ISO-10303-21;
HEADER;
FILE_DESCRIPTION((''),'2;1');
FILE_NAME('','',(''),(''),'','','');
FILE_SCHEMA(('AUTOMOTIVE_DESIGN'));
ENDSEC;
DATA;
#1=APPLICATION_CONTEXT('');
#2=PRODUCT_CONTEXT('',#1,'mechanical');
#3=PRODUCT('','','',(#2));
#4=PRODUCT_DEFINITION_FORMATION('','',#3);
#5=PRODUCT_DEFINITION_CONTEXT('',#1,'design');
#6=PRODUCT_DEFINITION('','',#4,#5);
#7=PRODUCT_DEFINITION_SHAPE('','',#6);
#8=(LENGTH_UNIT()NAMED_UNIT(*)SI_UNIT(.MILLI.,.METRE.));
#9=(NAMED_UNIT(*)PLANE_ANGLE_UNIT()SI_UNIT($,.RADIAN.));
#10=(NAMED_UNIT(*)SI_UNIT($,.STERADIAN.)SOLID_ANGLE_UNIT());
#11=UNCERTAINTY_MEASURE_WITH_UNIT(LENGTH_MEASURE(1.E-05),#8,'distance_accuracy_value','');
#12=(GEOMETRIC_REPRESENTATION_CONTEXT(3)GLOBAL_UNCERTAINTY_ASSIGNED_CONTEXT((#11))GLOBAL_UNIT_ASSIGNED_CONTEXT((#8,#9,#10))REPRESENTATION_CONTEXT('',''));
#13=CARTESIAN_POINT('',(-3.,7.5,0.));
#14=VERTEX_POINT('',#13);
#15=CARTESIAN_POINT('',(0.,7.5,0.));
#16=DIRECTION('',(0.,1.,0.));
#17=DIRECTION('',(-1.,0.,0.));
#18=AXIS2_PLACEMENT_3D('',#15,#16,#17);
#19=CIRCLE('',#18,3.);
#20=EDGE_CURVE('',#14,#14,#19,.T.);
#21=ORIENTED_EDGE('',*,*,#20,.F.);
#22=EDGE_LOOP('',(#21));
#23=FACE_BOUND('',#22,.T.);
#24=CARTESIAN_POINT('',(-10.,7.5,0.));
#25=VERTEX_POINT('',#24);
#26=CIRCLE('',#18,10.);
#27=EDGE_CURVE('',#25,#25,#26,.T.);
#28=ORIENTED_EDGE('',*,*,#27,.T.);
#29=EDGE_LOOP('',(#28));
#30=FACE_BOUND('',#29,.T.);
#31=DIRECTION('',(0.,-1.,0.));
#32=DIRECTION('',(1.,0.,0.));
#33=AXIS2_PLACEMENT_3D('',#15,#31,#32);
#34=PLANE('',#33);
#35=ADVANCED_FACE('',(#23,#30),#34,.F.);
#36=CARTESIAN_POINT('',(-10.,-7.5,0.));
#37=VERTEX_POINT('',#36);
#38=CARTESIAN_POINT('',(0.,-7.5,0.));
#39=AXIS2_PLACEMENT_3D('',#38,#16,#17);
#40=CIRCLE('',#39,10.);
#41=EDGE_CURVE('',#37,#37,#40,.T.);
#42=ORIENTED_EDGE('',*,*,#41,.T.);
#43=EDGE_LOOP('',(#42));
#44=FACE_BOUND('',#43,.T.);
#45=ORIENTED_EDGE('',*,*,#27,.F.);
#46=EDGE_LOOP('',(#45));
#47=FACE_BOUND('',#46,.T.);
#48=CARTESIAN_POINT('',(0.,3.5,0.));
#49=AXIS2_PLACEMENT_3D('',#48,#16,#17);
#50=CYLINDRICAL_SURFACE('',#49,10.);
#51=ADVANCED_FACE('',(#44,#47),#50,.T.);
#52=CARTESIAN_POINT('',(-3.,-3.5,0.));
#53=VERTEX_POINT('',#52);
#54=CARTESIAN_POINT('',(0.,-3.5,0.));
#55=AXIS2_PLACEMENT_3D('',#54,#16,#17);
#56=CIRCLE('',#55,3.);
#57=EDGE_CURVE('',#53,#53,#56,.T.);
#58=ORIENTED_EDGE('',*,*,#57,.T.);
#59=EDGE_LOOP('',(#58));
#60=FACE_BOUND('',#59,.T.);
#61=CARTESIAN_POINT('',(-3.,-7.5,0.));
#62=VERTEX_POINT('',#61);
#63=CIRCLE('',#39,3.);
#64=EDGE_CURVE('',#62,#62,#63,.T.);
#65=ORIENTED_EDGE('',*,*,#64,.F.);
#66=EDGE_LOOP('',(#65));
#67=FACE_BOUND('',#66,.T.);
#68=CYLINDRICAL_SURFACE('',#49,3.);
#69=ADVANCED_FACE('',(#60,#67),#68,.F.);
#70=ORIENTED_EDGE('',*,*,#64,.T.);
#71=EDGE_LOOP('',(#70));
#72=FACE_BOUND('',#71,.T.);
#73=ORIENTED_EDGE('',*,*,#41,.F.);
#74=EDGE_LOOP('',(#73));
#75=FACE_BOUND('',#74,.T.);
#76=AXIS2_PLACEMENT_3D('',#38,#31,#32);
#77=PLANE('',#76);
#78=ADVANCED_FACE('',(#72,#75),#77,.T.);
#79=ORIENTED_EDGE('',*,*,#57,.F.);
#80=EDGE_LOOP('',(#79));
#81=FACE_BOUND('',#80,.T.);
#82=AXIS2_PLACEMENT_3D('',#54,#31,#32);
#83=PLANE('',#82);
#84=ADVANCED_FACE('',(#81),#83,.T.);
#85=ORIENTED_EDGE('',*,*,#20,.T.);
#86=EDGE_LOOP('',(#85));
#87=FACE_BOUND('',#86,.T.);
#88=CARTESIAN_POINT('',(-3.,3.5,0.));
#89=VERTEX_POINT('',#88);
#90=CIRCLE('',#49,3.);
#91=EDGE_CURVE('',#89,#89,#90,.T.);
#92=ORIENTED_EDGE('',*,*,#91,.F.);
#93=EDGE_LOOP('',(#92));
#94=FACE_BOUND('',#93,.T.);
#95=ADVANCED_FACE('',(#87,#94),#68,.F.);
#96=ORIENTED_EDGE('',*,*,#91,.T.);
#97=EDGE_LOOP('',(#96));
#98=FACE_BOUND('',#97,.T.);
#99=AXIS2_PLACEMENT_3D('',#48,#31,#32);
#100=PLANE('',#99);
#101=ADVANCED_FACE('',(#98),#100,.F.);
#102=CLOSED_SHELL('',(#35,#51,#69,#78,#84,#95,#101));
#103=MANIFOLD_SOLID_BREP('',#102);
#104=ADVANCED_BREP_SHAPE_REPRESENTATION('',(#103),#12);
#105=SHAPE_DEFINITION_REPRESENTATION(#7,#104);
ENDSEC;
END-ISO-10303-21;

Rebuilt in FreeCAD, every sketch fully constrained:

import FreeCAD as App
import Part
import Sketcher
Q = App.Units.Quantity

doc = App.newDocument("Part")
body = doc.addObject("PartDesign::Body", "Body")

# Sketch on XY plane
sketch1 = doc.addObject("Sketcher::SketchObject", "Sketch")
body.addObject(sketch1)
sketch1.AttachmentSupport = (doc.XY_Plane, [""])
sketch1.MapMode = "FlatFace"
sketch1.addGeometry(Part.LineSegment(App.Vector(0, 3.5, 0), App.Vector(0, -3.5, 0)), False)
sketch1.addGeometry(Part.LineSegment(App.Vector(0, -3.5, 0), App.Vector(3, -3.5, 0)), False)
sketch1.addGeometry(Part.LineSegment(App.Vector(3, -3.5, 0), App.Vector(3, -7.5, 0)), False)
sketch1.addGeometry(Part.LineSegment(App.Vector(3, -7.5, 0), App.Vector(10, -7.5, 0)), False)
sketch1.addGeometry(Part.LineSegment(App.Vector(10, -7.5, 0), App.Vector(10, 7.5, 0)), False)
sketch1.addGeometry(Part.LineSegment(App.Vector(10, 7.5, 0), App.Vector(3, 7.5, 0)), False)
sketch1.addGeometry(Part.LineSegment(App.Vector(3, 7.5, 0), App.Vector(3, 3.5, 0)), False)
sketch1.addGeometry(Part.LineSegment(App.Vector(3, 3.5, 0), App.Vector(0, 3.5, 0)), False)
sketch1.addConstraint(Sketcher.Constraint("Coincident", 0, 2, 1, 1))
sketch1.addConstraint(Sketcher.Constraint("Coincident", 1, 2, 2, 1))
sketch1.addConstraint(Sketcher.Constraint("Coincident", 2, 2, 3, 1))
sketch1.addConstraint(Sketcher.Constraint("Coincident", 3, 2, 4, 1))
sketch1.addConstraint(Sketcher.Constraint("Coincident", 4, 2, 5, 1))
sketch1.addConstraint(Sketcher.Constraint("Coincident", 5, 2, 6, 1))
sketch1.addConstraint(Sketcher.Constraint("Coincident", 6, 2, 7, 1))
sketch1.addConstraint(Sketcher.Constraint("Coincident", 7, 2, 0, 1))
sketch1.addConstraint(Sketcher.Constraint("Vertical", 0))
sketch1.addConstraint(Sketcher.Constraint("Horizontal", 1))
sketch1.addConstraint(Sketcher.Constraint("Vertical", 2))
sketch1.addConstraint(Sketcher.Constraint("Horizontal", 3))
sketch1.addConstraint(Sketcher.Constraint("Vertical", 4))
sketch1.addConstraint(Sketcher.Constraint("Horizontal", 5))
sketch1.addConstraint(Sketcher.Constraint("Vertical", 6))
sketch1.addConstraint(Sketcher.Constraint("Horizontal", 7))
sketch1.addConstraint(Sketcher.Constraint("Symmetric", 0, 2, 7, 2, -1, 1))
sketch1.addConstraint(Sketcher.Constraint("Symmetric", 2, 2, 5, 2, -1))
sketch1.addConstraint(Sketcher.Constraint("Equal", 5, 0))
sketch1.addConstraint(Sketcher.Constraint("DistanceX", 1, 1, 1, 2, Q("3 mm")))
sketch1.addConstraint(Sketcher.Constraint("DistanceX", 3, 1, 3, 2, Q("7 mm")))
sketch1.addConstraint(Sketcher.Constraint("DistanceY", 2, 2, 2, 1, Q("4 mm")))
revolution = doc.addObject("PartDesign::Revolution", "Revolution")
body.addObject(revolution)
revolution.Profile = sketch1
revolution.ReferenceAxis = (sketch1, ["V_Axis"])
revolution.Angle = 360

doc.recompute()
